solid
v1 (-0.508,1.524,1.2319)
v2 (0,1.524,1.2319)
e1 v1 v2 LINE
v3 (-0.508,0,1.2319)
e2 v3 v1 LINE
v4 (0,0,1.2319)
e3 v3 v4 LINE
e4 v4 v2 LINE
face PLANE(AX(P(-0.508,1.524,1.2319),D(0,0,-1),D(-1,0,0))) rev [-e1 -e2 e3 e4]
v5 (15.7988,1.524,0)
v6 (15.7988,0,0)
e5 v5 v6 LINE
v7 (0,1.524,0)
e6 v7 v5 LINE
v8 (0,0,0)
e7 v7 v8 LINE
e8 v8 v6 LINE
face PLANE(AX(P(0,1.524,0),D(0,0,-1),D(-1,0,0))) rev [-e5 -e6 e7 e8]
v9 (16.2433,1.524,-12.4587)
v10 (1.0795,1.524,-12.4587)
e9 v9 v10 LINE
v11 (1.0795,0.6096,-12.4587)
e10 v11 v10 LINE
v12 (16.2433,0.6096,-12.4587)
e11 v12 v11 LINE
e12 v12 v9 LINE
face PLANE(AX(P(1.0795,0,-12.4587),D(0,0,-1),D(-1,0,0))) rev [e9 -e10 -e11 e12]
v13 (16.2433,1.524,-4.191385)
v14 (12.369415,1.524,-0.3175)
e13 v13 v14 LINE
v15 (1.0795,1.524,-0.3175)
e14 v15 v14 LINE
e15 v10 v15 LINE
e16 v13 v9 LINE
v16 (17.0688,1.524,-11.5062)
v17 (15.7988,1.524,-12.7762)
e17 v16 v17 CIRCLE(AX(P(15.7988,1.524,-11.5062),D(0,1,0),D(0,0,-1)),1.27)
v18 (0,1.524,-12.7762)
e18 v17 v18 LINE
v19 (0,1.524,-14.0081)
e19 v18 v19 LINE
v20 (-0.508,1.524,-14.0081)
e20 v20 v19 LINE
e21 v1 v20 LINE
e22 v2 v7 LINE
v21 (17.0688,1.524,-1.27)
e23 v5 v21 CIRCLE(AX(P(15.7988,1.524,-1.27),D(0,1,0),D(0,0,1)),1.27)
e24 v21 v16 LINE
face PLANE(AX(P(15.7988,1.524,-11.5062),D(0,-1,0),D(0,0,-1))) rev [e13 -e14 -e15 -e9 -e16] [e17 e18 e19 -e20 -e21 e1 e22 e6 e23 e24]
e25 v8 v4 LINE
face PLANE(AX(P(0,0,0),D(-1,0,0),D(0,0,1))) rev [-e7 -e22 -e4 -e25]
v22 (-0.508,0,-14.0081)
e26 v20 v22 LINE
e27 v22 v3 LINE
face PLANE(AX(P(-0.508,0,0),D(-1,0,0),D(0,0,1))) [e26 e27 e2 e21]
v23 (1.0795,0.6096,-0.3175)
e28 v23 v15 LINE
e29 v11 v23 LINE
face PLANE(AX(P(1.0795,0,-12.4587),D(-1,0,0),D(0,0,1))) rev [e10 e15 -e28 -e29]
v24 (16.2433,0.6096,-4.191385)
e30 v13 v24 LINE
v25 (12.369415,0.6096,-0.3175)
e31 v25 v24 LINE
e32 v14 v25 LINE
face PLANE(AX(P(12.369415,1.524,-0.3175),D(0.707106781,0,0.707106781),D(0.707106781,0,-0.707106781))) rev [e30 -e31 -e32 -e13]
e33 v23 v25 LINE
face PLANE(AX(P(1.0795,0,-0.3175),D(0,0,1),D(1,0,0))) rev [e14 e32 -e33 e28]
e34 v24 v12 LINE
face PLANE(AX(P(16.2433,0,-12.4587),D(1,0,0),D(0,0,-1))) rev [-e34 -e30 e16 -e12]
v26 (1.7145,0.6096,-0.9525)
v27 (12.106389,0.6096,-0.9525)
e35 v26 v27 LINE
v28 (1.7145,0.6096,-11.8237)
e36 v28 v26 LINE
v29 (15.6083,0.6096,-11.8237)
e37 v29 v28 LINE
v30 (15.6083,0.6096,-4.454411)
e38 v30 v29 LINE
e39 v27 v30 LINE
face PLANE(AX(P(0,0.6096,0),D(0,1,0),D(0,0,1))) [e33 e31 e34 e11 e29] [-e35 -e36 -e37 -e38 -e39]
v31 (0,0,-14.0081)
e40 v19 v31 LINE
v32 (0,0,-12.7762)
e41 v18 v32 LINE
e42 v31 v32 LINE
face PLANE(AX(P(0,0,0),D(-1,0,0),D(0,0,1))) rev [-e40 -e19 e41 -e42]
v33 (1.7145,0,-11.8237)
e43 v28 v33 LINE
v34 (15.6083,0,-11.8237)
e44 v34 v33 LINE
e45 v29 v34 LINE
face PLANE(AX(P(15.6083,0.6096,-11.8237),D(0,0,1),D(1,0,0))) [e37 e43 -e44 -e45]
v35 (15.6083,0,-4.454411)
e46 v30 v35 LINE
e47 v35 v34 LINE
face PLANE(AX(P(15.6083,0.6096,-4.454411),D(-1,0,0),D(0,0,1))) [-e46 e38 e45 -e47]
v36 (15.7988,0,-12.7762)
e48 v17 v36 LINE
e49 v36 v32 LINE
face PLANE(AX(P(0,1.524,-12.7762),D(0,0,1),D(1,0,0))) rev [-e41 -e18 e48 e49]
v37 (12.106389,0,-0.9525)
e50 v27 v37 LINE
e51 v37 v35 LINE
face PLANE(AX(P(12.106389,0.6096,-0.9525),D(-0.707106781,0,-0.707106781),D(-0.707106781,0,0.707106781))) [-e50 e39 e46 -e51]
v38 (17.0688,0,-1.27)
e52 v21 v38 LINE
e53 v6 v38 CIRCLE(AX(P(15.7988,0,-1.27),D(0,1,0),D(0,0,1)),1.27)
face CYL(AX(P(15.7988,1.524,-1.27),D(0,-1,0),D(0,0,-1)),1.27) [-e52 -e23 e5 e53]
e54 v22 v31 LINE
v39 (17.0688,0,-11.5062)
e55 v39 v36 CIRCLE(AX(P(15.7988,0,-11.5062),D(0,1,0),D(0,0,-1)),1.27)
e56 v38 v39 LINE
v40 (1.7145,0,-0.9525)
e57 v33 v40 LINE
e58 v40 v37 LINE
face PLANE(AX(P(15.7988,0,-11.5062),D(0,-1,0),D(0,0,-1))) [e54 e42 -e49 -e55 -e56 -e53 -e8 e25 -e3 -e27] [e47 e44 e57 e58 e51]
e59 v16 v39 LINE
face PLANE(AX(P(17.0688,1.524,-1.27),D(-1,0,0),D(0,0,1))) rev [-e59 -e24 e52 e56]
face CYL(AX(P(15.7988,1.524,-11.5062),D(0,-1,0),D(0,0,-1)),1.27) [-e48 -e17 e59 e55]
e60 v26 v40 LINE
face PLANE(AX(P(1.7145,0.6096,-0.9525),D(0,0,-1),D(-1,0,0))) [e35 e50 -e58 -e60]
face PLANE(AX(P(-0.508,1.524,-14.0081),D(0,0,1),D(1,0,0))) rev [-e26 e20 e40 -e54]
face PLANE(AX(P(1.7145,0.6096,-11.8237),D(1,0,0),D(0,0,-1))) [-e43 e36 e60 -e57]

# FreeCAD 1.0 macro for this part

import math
import FreeCAD as App
import Part
import Sketcher
Q = App.Units.Quantity


def add_polygon(sketch, points):
    """Adds a closed chain of lines whose ends are joined by coincident constraints."""
    first, n = sketch.GeometryCount, len(points)
    for a, b in zip(points, points[1:] + points[:1]):
        sketch.addGeometry(Part.LineSegment(App.Vector(*a, 0), App.Vector(*b, 0)), False)
    for i in range(n):
        sketch.addConstraint(Sketcher.Constraint("Coincident", first + i, 2, first + (i + 1) % n, 1))

doc = App.newDocument("Part")
params = doc.addObject("Spreadsheet::Sheet", "Params")
for row, (alias, value) in enumerate([
    ("sketch1_radius", "0.05 in"),
    ("sketch1_width", "0.622 in"),
    ("sketch1_height", "0.403 in"),
    ("pad1_length", "0.06 in"),
    ("sketch2_width", "0.597 in"),
    ("sketch2_height", "0.478 in"),
    ("pad2_length", "0.06 in"),
    ("sketch4_width", "0.597 in"),
    ("sketch4_width2", "0.547 in"),
    ("sketch4_height", "0.478 in"),
    ("sketch4_height2", "0.428 in"),
    ("pad3_length", "0.024 in"),
    ("sketch5_height", "0.6 in"),
    ("sketch5_width", "0.06 in"),
    ("pad4_length", "0.02 in"),
], start=1):
    params.set(f"A{row}", alias)
    params.set(f"B{row}", "=" + value)
    params.setAlias(f"B{row}", alias)

body = doc.addObject("PartDesign::Body", "Body")

# Sketch on XZ plane
sketch1 = doc.addObject("Sketcher::SketchObject", "Sketch")
body.addObject(sketch1)
sketch1.AttachmentSupport = (doc.XZ_Plane, [""])
sketch1.MapMode = "FlatFace"
sketch1.addGeometry([
    Part.LineSegment(App.Vector(0, 0, 0), App.Vector(15.7988, 0, 0)),  # 0
    Part.ArcOfCircle(Part.Circle(App.Vector(15.7988, -1.27, 0), App.Vector(0, 0, 1), 1.27), math.radians(0), math.radians(90)),  # 1
    Part.LineSegment(App.Vector(17.0688, -1.27, 0), App.Vector(17.0688, -11.5062, 0)),  # 2
    Part.ArcOfCircle(Part.Circle(App.Vector(15.7988, -11.5062, 0), App.Vector(0, 0, 1), 1.27), math.radians(-90), math.radians(0)),  # 3
    Part.LineSegment(App.Vector(15.7988, -12.7762, 0), App.Vector(0, -12.7762, 0)),  # 4
    Part.LineSegment(App.Vector(0, -12.7762, 0), App.Vector(0, 0, 0)),  # 5
], False)
sketch1.addConstraint([
    Sketcher.Constraint("Tangent", 0, 2, 1, 2),
    Sketcher.Constraint("Tangent", 1, 1, 2, 1),
    Sketcher.Constraint("Tangent", 2, 2, 3, 2),
    Sketcher.Constraint("Tangent", 3, 1, 4, 1),
    Sketcher.Constraint("Coincident", 4, 2, 5, 1),
    Sketcher.Constraint("Coincident", 5, 2, 0, 1),
    Sketcher.Constraint("Horizontal", 0),
    Sketcher.Constraint("Vertical", 2),
    Sketcher.Constraint("Horizontal", 4),
    Sketcher.Constraint("Vertical", 5),
    Sketcher.Constraint("Coincident", 5, 2, -1, 1),
    Sketcher.Constraint("Equal", 1, 3),
    Sketcher.Constraint("Radius", 1, Q("0.05 in")),
    Sketcher.Constraint("DistanceX", 0, 1, 0, 2, Q("0.622 in")),
    Sketcher.Constraint("DistanceY", 2, 2, 2, 1, Q("0.403 in")),
])
sketch1.setExpression("Constraints[12]", "Params.sketch1_radius")
sketch1.setExpression("Constraints[13]", "Params.sketch1_width")
sketch1.setExpression("Constraints[14]", "Params.sketch1_height")
pad1 = doc.addObject("PartDesign::Pad", "Pad")
body.addObject(pad1)
pad1.Profile = sketch1
pad1.setExpression("Length", "Params.pad1_length")
pad1.Reversed = True

# Sketch on XZ plane
sketch2 = doc.addObject("Sketcher::SketchObject", "Sketch001")
body.addObject(sketch2)
sketch2.AttachmentSupport = (doc.XZ_Plane, [""])
sketch2.MapMode = "FlatFace"
sketch2.AttachmentOffset = App.Placement(App.Vector(0, 0, -0.06 * 25.4), App.Rotation())
add_polygon(sketch2, [(1.0795, -12.4587), (1.0795, -0.3175), (16.2433, -0.3175), (16.2433, -12.4587)])  # lines 0-3
sketch2.addConstraint([
    Sketcher.Constraint("Vertical", 0),
    Sketcher.Constraint("Horizontal", 1),
    Sketcher.Constraint("Vertical", 2),
    Sketcher.Constraint("Horizontal", 3),
    Sketcher.Constraint("DistanceX", 1, 1, 1, 2, Q("0.597 in")),
    Sketcher.Constraint("DistanceY", 0, 1, 0, 2, Q("0.478 in")),
    Sketcher.Constraint("DistanceX", -1, 1, 0, 2, Q("0.0425 in")),
    Sketcher.Constraint("DistanceY", 0, 2, -1, 1, Q("0.0125 in")),
])
sketch2.setExpression("Constraints[8]", "Params.sketch2_width")
sketch2.setExpression("Constraints[9]", "Params.sketch2_height")
pocket1 = doc.addObject("PartDesign::Pocket", "Pocket")
body.addObject(pocket1)
pocket1.Profile = sketch2
pocket1.Type = "ThroughAll"
pocket1.Reversed = True

# Sketch on XZ plane
sketch3 = doc.addObject("Sketcher::SketchObject", "Sketch002")
body.addObject(sketch3)
sketch3.AttachmentSupport = (doc.XZ_Plane, [""])
sketch3.MapMode = "FlatFace"
add_polygon(sketch3, [(16.2433, -4.191385), (12.369415, -0.3175), (16.2433, -0.3175)])  # lines 0-2
sketch3.addConstraint([
    Sketcher.Constraint("Horizontal", 1),
    Sketcher.Constraint("Vertical", 2),
    Sketcher.Constraint("Equal", 1, 2),
    Sketcher.Constraint("DistanceY", 0, 2, -1, 1, Q("0.0125 in")),
    Sketcher.Constraint("DistanceX", -1, 1, 1, 2, Q("0.6395 in")),
    Sketcher.Constraint("Distance", 0, Q("5.478501 mm")),
])
pad2 = doc.addObject("PartDesign::Pad", "Pad001")
body.addObject(pad2)
pad2.Profile = sketch3
pad2.setExpression("Length", "Params.pad2_length")
pad2.Reversed = True

# Sketch on XZ plane
sketch4 = doc.addObject("Sketcher::SketchObject", "Sketch003")
body.addObject(sketch4)
sketch4.AttachmentSupport = (doc.XZ_Plane, [""])
sketch4.MapMode = "FlatFace"
add_polygon(sketch4, [(1.0795, -0.3175), (12.369415, -0.3175), (16.2433, -4.191385), (16.2433, -12.4587), (1.0795, -12.4587)])  # lines 0-4
add_polygon(sketch4, [(1.7145, -0.9525), (1.7145, -11.8237), (15.6083, -11.8237), (15.6083, -4.454411), (12.106389, -0.9525)])  # lines 5-9
sketch4.addConstraint([
    Sketcher.Constraint("Horizontal", 0),
    Sketcher.Constraint("Vertical", 2),
    Sketcher.Constraint("Horizontal", 3),
    Sketcher.Constraint("Vertical", 4),
    Sketcher.Constraint("Vertical", 5),
    Sketcher.Constraint("Horizontal", 6),
    Sketcher.Constraint("Vertical", 7),
    Sketcher.Constraint("Horizontal", 9),
    Sketcher.Constraint("Parallel", 1, 8),
    Sketcher.Constraint("Angle", 1, Q("-45 deg")),
    Sketcher.Constraint("DistanceX", 3, 2, 3, 1, Q("0.597 in")),
    Sketcher.Constraint("DistanceX", 6, 1, 6, 2, Q("0.547 in")),
    Sketcher.Constraint("DistanceY", 4, 1, 4, 2, Q("0.478 in")),
    Sketcher.Constraint("DistanceY", 5, 2, 5, 1, Q("0.428 in")),
    Sketcher.Constraint("DistanceX", 3, 2, 5, 2, Q("0.025 in")),
    Sketcher.Constraint("DistanceY", 3, 2, 5, 2, Q("0.025 in")),
    Sketcher.Constraint("DistanceY", 0, 2, -1, 1, Q("0.0125 in")),
    Sketcher.Constraint("DistanceX", -1, 1, 1, 2, Q("0.6395 in")),
    Sketcher.Constraint("Distance", 1, Q("5.478501 mm")),
    Sketcher.Constraint("DistanceX", 9, 2, 9, 1, Q("10.391889 mm")),
])
sketch4.setExpression("Constraints[20]", "Params.sketch4_width")
sketch4.setExpression("Constraints[21]", "Params.sketch4_width2")
sketch4.setExpression("Constraints[22]", "Params.sketch4_height")
sketch4.setExpression("Constraints[23]", "Params.sketch4_height2")
pad3 = doc.addObject("PartDesign::Pad", "Pad002")
body.addObject(pad3)
pad3.Profile = sketch4
pad3.setExpression("Length", "Params.pad3_length")
pad3.Reversed = True

# Sketch on YZ plane
sketch5 = doc.addObject("Sketcher::SketchObject", "Sketch004")
body.addObject(sketch5)
sketch5.AttachmentSupport = (doc.YZ_Plane, [""])
sketch5.MapMode = "FlatFace"
add_polygon(sketch5, [(1.524, -14.0081), (0, -14.0081), (0, 1.2319), (1.524, 1.2319)])  # lines 0-3
sketch5.addConstraint([
    Sketcher.Constraint("Horizontal", 0),
    Sketcher.Constraint("Vertical", 1),
    Sketcher.Constraint("Horizontal", 2),
    Sketcher.Constraint("Vertical", 3),
    Sketcher.Constraint("PointOnObject", 0, 2, -2),
    Sketcher.Constraint("DistanceY", 1, 1, 1, 2, Q("0.6 in")),
    Sketcher.Constraint("DistanceX", 0, 2, 0, 1, Q("0.06 in")),
    Sketcher.Constraint("DistanceY", 0, 2, -1, 1, Q("0.5515 in")),
])
sketch5.setExpression("Constraints[9]", "Params.sketch5_height")
sketch5.setExpression("Constraints[10]", "Params.sketch5_width")
pad4 = doc.addObject("PartDesign::Pad", "Pad003")
body.addObject(pad4)
pad4.Profile = sketch5
pad4.setExpression("Length", "Params.pad4_length")
pad4.Reversed = True

doc.recompute()
